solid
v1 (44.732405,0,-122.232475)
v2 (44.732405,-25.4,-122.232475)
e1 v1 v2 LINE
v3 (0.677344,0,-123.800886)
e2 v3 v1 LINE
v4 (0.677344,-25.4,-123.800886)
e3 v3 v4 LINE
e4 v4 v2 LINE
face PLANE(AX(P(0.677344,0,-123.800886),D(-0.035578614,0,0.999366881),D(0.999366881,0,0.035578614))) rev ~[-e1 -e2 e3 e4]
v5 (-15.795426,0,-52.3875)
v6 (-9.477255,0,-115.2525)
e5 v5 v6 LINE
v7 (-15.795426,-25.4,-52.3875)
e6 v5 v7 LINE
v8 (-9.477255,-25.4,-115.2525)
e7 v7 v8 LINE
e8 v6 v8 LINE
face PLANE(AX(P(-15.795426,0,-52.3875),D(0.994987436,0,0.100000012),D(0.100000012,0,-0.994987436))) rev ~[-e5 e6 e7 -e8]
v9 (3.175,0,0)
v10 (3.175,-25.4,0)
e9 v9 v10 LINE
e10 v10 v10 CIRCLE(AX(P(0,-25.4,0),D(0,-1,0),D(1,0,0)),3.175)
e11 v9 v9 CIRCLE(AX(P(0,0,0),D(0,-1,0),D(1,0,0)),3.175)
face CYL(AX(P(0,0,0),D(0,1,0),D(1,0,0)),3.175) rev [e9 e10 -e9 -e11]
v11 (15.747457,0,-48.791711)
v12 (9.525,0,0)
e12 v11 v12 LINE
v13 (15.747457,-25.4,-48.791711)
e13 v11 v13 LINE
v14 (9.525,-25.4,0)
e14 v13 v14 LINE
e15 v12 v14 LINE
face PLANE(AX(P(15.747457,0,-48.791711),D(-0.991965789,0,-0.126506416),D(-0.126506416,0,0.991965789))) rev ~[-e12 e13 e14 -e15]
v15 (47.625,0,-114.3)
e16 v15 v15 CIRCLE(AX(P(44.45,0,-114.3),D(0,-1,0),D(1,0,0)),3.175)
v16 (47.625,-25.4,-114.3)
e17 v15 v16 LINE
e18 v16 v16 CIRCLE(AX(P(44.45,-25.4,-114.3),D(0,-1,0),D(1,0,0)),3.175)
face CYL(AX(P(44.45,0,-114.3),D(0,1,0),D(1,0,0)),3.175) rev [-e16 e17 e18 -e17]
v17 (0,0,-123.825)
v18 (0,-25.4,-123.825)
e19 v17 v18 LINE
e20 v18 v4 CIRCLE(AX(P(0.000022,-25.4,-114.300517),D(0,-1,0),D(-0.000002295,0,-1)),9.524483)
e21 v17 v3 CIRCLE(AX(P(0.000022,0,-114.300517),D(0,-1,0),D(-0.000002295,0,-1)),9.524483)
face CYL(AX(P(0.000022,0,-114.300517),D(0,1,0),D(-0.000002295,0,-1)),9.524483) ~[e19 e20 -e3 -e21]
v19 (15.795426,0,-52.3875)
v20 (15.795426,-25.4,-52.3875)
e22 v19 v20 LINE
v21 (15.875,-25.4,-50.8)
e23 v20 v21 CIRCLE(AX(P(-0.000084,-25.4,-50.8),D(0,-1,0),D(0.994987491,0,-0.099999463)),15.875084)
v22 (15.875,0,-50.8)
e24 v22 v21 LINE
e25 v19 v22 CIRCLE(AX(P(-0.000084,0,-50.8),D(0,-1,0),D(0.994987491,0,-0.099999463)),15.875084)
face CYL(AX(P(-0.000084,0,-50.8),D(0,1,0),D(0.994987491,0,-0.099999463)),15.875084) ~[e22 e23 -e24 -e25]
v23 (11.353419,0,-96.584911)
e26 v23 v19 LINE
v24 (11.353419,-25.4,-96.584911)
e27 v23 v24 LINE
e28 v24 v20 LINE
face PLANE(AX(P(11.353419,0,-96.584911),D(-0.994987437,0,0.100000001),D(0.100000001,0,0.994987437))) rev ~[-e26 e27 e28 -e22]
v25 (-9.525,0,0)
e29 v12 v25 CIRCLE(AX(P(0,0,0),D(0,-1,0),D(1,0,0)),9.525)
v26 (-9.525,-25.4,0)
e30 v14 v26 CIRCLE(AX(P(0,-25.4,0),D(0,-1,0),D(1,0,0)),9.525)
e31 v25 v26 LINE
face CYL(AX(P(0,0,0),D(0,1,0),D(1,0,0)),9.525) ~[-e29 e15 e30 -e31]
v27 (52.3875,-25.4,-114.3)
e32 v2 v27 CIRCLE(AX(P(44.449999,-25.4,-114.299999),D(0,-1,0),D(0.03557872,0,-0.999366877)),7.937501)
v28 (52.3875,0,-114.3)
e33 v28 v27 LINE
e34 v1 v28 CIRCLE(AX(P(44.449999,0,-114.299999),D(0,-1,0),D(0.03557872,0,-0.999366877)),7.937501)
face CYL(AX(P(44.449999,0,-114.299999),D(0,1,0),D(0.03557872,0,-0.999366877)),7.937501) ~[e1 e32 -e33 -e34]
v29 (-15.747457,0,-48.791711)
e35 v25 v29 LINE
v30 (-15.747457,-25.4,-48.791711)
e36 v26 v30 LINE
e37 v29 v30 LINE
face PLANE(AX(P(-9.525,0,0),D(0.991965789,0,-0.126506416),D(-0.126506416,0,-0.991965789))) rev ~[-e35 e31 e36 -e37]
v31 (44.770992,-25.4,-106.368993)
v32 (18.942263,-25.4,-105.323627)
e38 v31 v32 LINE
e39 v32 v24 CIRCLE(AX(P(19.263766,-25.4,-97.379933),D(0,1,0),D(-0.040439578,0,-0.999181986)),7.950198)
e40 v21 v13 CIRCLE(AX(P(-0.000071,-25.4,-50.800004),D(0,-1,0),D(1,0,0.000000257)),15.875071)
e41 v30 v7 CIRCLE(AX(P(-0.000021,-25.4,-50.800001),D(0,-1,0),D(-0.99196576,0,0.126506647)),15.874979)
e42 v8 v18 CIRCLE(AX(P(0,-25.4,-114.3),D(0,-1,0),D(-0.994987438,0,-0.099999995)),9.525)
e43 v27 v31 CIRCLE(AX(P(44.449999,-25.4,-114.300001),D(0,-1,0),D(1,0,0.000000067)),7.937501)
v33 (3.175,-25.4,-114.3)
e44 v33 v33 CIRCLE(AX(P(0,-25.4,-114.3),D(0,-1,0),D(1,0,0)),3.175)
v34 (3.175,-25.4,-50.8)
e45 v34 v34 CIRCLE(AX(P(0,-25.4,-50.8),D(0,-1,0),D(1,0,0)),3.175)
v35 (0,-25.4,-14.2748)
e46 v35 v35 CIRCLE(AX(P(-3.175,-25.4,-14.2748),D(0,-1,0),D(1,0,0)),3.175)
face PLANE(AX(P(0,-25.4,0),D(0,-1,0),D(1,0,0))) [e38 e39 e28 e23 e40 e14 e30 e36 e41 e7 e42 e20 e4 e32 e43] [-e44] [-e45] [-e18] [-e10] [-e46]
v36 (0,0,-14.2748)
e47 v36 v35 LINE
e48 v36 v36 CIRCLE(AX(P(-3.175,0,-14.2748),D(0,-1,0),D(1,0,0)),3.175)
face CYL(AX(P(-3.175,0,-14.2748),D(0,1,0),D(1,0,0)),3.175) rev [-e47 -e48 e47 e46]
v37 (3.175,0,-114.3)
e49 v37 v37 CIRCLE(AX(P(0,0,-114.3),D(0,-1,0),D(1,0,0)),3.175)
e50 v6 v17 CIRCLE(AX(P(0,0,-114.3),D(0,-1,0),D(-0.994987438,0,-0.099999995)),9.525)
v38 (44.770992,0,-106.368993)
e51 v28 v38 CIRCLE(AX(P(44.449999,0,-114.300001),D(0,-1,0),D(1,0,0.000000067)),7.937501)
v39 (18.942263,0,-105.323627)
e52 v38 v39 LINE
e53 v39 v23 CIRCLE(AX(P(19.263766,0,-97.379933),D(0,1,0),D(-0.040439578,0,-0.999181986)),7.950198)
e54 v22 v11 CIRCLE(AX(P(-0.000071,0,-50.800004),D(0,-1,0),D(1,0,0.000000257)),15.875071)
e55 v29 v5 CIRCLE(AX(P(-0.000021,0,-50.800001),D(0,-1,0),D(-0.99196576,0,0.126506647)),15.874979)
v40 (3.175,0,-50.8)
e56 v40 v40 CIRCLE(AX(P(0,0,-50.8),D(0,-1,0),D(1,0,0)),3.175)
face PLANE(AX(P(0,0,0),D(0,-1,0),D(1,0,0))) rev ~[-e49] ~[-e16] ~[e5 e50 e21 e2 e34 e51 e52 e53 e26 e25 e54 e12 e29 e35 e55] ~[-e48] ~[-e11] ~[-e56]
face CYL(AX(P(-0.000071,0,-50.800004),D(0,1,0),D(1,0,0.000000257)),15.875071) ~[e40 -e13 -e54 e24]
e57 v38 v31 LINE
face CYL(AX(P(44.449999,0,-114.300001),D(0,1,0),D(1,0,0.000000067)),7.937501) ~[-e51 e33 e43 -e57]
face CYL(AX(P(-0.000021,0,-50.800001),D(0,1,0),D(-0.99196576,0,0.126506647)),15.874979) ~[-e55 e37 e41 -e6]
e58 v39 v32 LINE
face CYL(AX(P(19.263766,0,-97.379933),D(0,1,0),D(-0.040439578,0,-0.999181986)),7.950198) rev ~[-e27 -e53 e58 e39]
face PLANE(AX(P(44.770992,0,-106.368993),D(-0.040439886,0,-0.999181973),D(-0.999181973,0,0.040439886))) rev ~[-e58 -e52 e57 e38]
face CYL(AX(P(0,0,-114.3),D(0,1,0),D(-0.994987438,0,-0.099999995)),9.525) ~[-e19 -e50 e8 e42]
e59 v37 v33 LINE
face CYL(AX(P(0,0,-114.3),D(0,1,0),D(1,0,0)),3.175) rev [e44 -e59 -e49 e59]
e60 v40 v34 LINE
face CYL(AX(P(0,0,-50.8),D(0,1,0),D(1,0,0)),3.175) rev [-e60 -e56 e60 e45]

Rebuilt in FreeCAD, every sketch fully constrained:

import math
import FreeCAD as App
import Part
import Sketcher
Q = App.Units.Quantity

doc = App.newDocument("Part")
body = doc.addObject("PartDesign::Body", "Body")

# Sketch on XZ plane
sketch1 = body.newObject("Sketcher::SketchObject", "Sketch")
sketch1.AttachmentSupport = (doc.getObject("XZ_Plane"), [""])
sketch1.MapMode = "FlatFace"
sketch1.addGeometry(Part.ArcOfCircle(Part.Circle(App.Vector(0, 0, 0), App.Vector(0, 0, 1), 9.525), math.radians(0), math.radians(180)), False)
sketch1.addGeometry(Part.LineSegment(App.Vector(-9.525, 0, 0), App.Vector(-15.747457, -48.791711, 0)), False)
sketch1.addGeometry(Part.ArcOfCircle(Part.Circle(App.Vector(-0.000021, -50.800001, 0), App.Vector(0, 0, 1), 15.874979), math.radians(172.732229), math.radians(185.739173)), False)
sketch1.addGeometry(Part.LineSegment(App.Vector(-15.795426, -52.3875, 0), App.Vector(-9.477255, -115.2525, 0)), False)
sketch1.addGeometry(Part.ArcOfCircle(Part.Circle(App.Vector(0, -114.3, 0), App.Vector(0, 0, 1), 9.525), math.radians(-174.26083), math.radians(-90.000002)), False)
sketch1.addGeometry(Part.ArcOfCircle(Part.Circle(App.Vector(0.000022, -114.300517, 0), App.Vector(0, 0, 1), 9.524483), math.radians(-90.000132), math.radians(-85.922038)), False)
sketch1.addGeometry(Part.LineSegment(App.Vector(0.677344, -123.800886, 0), App.Vector(44.732405, -122.232475, 0)), False)
sketch1.addGeometry(Part.ArcOfCircle(Part.Circle(App.Vector(44.449999, -114.299999, 0), App.Vector(0, 0, 1), 7.937501), math.radians(-87.961059), math.radians(-0.000005)), False)
sketch1.addGeometry(Part.ArcOfCircle(Part.Circle(App.Vector(44.449999, -114.300001, 0), App.Vector(0, 0, 1), 7.937501), math.radians(0.000004), math.radians(87.682326)), False)
sketch1.addGeometry(Part.LineSegment(App.Vector(44.770992, -106.368993, 0), App.Vector(18.942263, -105.323627, 0)), False)
sketch1.addGeometry(Part.ArcOfCircle(Part.Circle(App.Vector(19.263766, -97.379933, 0), App.Vector(0, 0, 1), 7.950198), math.radians(174.260816), math.radians(267.682351)), False)
sketch1.addGeometry(Part.LineSegment(App.Vector(11.353419, -96.584911, 0), App.Vector(15.795426, -52.3875, 0)), False)
sketch1.addGeometry(Part.ArcOfCircle(Part.Circle(App.Vector(-0.000084, -50.8, 0), App.Vector(0, 0, 1), 15.875084), math.radians(-5.73914), math.radians(0)), False)
sketch1.addGeometry(Part.ArcOfCircle(Part.Circle(App.Vector(-0.000071, -50.800004, 0), App.Vector(0, 0, 1), 15.875071), math.radians(0.000015), math.radians(7.267739)), False)
sketch1.addGeometry(Part.LineSegment(App.Vector(15.747457, -48.791711, 0), App.Vector(9.525, 0, 0)), False)
sketch1.addGeometry(Part.Circle(App.Vector(0, -114.3, 0), App.Vector(0, 0, 1), 3.175), False)
sketch1.addGeometry(Part.Circle(App.Vector(44.45, -114.3, 0), App.Vector(0, 0, 1), 3.175), False)
sketch1.addGeometry(Part.Circle(App.Vector(0, -50.8, 0), App.Vector(0, 0, 1), 3.175), False)
sketch1.addGeometry(Part.Circle(App.Vector(-3.175, -14.2748, 0), App.Vector(0, 0, 1), 3.175), False)
sketch1.addGeometry(Part.Circle(App.Vector(0, 0, 0), App.Vector(0, 0, 1), 3.175), False)
sketch1.addConstraint(Sketcher.Constraint("Coincident", 0, 2, 1, 1))
sketch1.addConstraint(Sketcher.Constraint("Coincident", 1, 2, 2, 1))
sketch1.addConstraint(Sketcher.Constraint("Coincident", 2, 2, 3, 1))
sketch1.addConstraint(Sketcher.Constraint("Coincident", 3, 2, 4, 1))
sketch1.addConstraint(Sketcher.Constraint("Coincident", 4, 2, 5, 1))
sketch1.addConstraint(Sketcher.Constraint("Coincident", 5, 2, 6, 1))
sketch1.addConstraint(Sketcher.Constraint("Coincident", 6, 2, 7, 1))
sketch1.addConstraint(Sketcher.Constraint("Coincident", 7, 2, 8, 1))
sketch1.addConstraint(Sketcher.Constraint("Coincident", 8, 2, 9, 1))
sketch1.addConstraint(Sketcher.Constraint("Coincident", 9, 2, 10, 2))
sketch1.addConstraint(Sketcher.Constraint("Coincident", 10, 1, 11, 1))
sketch1.addConstraint(Sketcher.Constraint("Coincident", 11, 2, 12, 1))
sketch1.addConstraint(Sketcher.Constraint("Coincident", 12, 2, 13, 1))
sketch1.addConstraint(Sketcher.Constraint("Coincident", 13, 2, 14, 1))
sketch1.addConstraint(Sketcher.Constraint("Coincident", 14, 2, 0, 1))
sketch1.addConstraint(Sketcher.Constraint("Coincident", 0, 3, -1, 1))
sketch1.addConstraint(Sketcher.Constraint("Coincident", 19, 3, -1, 1))
sketch1.addConstraint(Sketcher.Constraint("Coincident", 8, 3, 7, 3))
sketch1.addConstraint(Sketcher.Constraint("Coincident", 15, 3, 4, 3))
sketch1.addConstraint(Sketcher.Constraint("Coincident", 16, 3, 7, 3))
sketch1.addConstraint(Sketcher.Constraint("PointOnObject", 4, 3, -2))
sketch1.addConstraint(Sketcher.Constraint("PointOnObject", 17, 3, -2))
sketch1.addConstraint(Sketcher.Constraint("PointOnObject", 0, 2, -1))
sketch1.addConstraint(Sketcher.Constraint("PointOnObject", 4, 2, -2))
sketch1.addConstraint(Sketcher.Constraint("PointOnObject", 14, 2, -1))
sketch1.addConstraint(Sketcher.Constraint("Diameter", 15, Q("0.25 in")))
sketch1.addConstraint(Sketcher.Constraint("Diameter", 16, Q("0.25 in")))
sketch1.addConstraint(Sketcher.Constraint("Diameter", 17, Q("0.25 in")))
sketch1.addConstraint(Sketcher.Constraint("Diameter", 18, Q("0.25 in")))
sketch1.addConstraint(Sketcher.Constraint("Diameter", 19, Q("0.25 in")))
sketch1.addConstraint(Sketcher.Constraint("DistanceY", 2, 3, -1, 1, Q("2.0000001 in")))
sketch1.addConstraint(Sketcher.Constraint("DistanceY", 12, 3, -1, 1, Q("2 in")))
sketch1.addConstraint(Sketcher.Constraint("DistanceY", 13, 3, -1, 1, Q("2.0000002 in")))
sketch1.addConstraint(Sketcher.Constraint("DistanceY", 17, 3, -1, 1, Q("2 in")))
sketch1.addConstraint(Sketcher.Constraint("DistanceY", 12, 2, -1, 1, Q("2 in")))
sketch1.addConstraint(Sketcher.Constraint("Radius", 0, Q("0.375 in")))
sketch1.addConstraint(Sketcher.Constraint("Radius", 4, Q("0.375 in")))
sketch1.addConstraint(Sketcher.Constraint("Radius", 7, Q("0.3125 in")))
sketch1.addConstraint(Sketcher.Constraint("Radius", 10, Q("0.3129999 in")))
sketch1.addConstraint(Sketcher.Constraint("DistanceY", 4, 3, -1, 1, Q("4.5 in")))
sketch1.addConstraint(Sketcher.Constraint("DistanceY", 7, 3, -1, 1, Q("4.5 in")))
sketch1.addConstraint(Sketcher.Constraint("DistanceY", 7, 2, -1, 1, Q("4.5 in")))
sketch1.addConstraint(Sketcher.Constraint("DistanceX", 18, 3, 14, 2, Q("0.5 in")))
sketch1.addConstraint(Sketcher.Constraint("DistanceX", -1, 1, 7, 3, Q("1.75 in")))
sketch1.addConstraint(Sketcher.Constraint("DistanceY", 18, 3, -1, 1, Q("0.562 in")))
sketch1.addConstraint(Sketcher.Constraint("DistanceY", 2, 2, -1, 1, Q("2.0625 in")))
sketch1.addConstraint(Sketcher.Constraint("DistanceY", 11, 2, -1, 1, Q("2.0625 in")))
sketch1.addConstraint(Sketcher.Constraint("DistanceX", -1, 1, 12, 2, Q("0.625 in")))
sketch1.addConstraint(Sketcher.Constraint("Radius", 2, 15.874979))
sketch1.addConstraint(Sketcher.Constraint("Radius", 13, 15.875071))
sketch1.addConstraint(Sketcher.Constraint("DistanceY", 3, 2, -1, 1, Q("4.5375 in")))
sketch1.addConstraint(Sketcher.Constraint("Radius", 5, 9.524483))
sketch1.addConstraint(Sketcher.Constraint("Radius", 12, 15.875084))
sketch1.addConstraint(Sketcher.Constraint("DistanceY", 10, 3, 10, 1, Q("0.0313001 in")))
sketch1.addConstraint(Sketcher.Constraint("DistanceX", 3, 2, 5, 2, 10.154599))
sketch1.addConstraint(Sketcher.Constraint("Distance", 1, 49.186889))
sketch1.addConstraint(Sketcher.Constraint("Distance", 6, 44.082971))
sketch1.addConstraint(Sketcher.Constraint("Distance", 11, 44.420069))
sketch1.addConstraint(Sketcher.Constraint("Distance", 14, 49.186889))
sketch1.addConstraint(Sketcher.Constraint("DistanceY", 1, 2, -1, 1, 48.791711))
sketch1.addConstraint(Sketcher.Constraint("DistanceX", -1, 1, 8, 2, 44.770992))
sketch1.addConstraint(Sketcher.Constraint("DistanceX", -1, 1, 10, 1, 11.353419))
sketch1.addConstraint(Sketcher.Constraint("DistanceX", 5, 3, 16, 3, 44.449978))
sketch1.addConstraint(Sketcher.Constraint("DistanceX", 5, 3, 9, 2, 18.942241))
pad1 = body.newObject("PartDesign::Pad", "Pad")
pad1.Profile = sketch1
pad1.Length = Q("1 in")

doc.recompute()
